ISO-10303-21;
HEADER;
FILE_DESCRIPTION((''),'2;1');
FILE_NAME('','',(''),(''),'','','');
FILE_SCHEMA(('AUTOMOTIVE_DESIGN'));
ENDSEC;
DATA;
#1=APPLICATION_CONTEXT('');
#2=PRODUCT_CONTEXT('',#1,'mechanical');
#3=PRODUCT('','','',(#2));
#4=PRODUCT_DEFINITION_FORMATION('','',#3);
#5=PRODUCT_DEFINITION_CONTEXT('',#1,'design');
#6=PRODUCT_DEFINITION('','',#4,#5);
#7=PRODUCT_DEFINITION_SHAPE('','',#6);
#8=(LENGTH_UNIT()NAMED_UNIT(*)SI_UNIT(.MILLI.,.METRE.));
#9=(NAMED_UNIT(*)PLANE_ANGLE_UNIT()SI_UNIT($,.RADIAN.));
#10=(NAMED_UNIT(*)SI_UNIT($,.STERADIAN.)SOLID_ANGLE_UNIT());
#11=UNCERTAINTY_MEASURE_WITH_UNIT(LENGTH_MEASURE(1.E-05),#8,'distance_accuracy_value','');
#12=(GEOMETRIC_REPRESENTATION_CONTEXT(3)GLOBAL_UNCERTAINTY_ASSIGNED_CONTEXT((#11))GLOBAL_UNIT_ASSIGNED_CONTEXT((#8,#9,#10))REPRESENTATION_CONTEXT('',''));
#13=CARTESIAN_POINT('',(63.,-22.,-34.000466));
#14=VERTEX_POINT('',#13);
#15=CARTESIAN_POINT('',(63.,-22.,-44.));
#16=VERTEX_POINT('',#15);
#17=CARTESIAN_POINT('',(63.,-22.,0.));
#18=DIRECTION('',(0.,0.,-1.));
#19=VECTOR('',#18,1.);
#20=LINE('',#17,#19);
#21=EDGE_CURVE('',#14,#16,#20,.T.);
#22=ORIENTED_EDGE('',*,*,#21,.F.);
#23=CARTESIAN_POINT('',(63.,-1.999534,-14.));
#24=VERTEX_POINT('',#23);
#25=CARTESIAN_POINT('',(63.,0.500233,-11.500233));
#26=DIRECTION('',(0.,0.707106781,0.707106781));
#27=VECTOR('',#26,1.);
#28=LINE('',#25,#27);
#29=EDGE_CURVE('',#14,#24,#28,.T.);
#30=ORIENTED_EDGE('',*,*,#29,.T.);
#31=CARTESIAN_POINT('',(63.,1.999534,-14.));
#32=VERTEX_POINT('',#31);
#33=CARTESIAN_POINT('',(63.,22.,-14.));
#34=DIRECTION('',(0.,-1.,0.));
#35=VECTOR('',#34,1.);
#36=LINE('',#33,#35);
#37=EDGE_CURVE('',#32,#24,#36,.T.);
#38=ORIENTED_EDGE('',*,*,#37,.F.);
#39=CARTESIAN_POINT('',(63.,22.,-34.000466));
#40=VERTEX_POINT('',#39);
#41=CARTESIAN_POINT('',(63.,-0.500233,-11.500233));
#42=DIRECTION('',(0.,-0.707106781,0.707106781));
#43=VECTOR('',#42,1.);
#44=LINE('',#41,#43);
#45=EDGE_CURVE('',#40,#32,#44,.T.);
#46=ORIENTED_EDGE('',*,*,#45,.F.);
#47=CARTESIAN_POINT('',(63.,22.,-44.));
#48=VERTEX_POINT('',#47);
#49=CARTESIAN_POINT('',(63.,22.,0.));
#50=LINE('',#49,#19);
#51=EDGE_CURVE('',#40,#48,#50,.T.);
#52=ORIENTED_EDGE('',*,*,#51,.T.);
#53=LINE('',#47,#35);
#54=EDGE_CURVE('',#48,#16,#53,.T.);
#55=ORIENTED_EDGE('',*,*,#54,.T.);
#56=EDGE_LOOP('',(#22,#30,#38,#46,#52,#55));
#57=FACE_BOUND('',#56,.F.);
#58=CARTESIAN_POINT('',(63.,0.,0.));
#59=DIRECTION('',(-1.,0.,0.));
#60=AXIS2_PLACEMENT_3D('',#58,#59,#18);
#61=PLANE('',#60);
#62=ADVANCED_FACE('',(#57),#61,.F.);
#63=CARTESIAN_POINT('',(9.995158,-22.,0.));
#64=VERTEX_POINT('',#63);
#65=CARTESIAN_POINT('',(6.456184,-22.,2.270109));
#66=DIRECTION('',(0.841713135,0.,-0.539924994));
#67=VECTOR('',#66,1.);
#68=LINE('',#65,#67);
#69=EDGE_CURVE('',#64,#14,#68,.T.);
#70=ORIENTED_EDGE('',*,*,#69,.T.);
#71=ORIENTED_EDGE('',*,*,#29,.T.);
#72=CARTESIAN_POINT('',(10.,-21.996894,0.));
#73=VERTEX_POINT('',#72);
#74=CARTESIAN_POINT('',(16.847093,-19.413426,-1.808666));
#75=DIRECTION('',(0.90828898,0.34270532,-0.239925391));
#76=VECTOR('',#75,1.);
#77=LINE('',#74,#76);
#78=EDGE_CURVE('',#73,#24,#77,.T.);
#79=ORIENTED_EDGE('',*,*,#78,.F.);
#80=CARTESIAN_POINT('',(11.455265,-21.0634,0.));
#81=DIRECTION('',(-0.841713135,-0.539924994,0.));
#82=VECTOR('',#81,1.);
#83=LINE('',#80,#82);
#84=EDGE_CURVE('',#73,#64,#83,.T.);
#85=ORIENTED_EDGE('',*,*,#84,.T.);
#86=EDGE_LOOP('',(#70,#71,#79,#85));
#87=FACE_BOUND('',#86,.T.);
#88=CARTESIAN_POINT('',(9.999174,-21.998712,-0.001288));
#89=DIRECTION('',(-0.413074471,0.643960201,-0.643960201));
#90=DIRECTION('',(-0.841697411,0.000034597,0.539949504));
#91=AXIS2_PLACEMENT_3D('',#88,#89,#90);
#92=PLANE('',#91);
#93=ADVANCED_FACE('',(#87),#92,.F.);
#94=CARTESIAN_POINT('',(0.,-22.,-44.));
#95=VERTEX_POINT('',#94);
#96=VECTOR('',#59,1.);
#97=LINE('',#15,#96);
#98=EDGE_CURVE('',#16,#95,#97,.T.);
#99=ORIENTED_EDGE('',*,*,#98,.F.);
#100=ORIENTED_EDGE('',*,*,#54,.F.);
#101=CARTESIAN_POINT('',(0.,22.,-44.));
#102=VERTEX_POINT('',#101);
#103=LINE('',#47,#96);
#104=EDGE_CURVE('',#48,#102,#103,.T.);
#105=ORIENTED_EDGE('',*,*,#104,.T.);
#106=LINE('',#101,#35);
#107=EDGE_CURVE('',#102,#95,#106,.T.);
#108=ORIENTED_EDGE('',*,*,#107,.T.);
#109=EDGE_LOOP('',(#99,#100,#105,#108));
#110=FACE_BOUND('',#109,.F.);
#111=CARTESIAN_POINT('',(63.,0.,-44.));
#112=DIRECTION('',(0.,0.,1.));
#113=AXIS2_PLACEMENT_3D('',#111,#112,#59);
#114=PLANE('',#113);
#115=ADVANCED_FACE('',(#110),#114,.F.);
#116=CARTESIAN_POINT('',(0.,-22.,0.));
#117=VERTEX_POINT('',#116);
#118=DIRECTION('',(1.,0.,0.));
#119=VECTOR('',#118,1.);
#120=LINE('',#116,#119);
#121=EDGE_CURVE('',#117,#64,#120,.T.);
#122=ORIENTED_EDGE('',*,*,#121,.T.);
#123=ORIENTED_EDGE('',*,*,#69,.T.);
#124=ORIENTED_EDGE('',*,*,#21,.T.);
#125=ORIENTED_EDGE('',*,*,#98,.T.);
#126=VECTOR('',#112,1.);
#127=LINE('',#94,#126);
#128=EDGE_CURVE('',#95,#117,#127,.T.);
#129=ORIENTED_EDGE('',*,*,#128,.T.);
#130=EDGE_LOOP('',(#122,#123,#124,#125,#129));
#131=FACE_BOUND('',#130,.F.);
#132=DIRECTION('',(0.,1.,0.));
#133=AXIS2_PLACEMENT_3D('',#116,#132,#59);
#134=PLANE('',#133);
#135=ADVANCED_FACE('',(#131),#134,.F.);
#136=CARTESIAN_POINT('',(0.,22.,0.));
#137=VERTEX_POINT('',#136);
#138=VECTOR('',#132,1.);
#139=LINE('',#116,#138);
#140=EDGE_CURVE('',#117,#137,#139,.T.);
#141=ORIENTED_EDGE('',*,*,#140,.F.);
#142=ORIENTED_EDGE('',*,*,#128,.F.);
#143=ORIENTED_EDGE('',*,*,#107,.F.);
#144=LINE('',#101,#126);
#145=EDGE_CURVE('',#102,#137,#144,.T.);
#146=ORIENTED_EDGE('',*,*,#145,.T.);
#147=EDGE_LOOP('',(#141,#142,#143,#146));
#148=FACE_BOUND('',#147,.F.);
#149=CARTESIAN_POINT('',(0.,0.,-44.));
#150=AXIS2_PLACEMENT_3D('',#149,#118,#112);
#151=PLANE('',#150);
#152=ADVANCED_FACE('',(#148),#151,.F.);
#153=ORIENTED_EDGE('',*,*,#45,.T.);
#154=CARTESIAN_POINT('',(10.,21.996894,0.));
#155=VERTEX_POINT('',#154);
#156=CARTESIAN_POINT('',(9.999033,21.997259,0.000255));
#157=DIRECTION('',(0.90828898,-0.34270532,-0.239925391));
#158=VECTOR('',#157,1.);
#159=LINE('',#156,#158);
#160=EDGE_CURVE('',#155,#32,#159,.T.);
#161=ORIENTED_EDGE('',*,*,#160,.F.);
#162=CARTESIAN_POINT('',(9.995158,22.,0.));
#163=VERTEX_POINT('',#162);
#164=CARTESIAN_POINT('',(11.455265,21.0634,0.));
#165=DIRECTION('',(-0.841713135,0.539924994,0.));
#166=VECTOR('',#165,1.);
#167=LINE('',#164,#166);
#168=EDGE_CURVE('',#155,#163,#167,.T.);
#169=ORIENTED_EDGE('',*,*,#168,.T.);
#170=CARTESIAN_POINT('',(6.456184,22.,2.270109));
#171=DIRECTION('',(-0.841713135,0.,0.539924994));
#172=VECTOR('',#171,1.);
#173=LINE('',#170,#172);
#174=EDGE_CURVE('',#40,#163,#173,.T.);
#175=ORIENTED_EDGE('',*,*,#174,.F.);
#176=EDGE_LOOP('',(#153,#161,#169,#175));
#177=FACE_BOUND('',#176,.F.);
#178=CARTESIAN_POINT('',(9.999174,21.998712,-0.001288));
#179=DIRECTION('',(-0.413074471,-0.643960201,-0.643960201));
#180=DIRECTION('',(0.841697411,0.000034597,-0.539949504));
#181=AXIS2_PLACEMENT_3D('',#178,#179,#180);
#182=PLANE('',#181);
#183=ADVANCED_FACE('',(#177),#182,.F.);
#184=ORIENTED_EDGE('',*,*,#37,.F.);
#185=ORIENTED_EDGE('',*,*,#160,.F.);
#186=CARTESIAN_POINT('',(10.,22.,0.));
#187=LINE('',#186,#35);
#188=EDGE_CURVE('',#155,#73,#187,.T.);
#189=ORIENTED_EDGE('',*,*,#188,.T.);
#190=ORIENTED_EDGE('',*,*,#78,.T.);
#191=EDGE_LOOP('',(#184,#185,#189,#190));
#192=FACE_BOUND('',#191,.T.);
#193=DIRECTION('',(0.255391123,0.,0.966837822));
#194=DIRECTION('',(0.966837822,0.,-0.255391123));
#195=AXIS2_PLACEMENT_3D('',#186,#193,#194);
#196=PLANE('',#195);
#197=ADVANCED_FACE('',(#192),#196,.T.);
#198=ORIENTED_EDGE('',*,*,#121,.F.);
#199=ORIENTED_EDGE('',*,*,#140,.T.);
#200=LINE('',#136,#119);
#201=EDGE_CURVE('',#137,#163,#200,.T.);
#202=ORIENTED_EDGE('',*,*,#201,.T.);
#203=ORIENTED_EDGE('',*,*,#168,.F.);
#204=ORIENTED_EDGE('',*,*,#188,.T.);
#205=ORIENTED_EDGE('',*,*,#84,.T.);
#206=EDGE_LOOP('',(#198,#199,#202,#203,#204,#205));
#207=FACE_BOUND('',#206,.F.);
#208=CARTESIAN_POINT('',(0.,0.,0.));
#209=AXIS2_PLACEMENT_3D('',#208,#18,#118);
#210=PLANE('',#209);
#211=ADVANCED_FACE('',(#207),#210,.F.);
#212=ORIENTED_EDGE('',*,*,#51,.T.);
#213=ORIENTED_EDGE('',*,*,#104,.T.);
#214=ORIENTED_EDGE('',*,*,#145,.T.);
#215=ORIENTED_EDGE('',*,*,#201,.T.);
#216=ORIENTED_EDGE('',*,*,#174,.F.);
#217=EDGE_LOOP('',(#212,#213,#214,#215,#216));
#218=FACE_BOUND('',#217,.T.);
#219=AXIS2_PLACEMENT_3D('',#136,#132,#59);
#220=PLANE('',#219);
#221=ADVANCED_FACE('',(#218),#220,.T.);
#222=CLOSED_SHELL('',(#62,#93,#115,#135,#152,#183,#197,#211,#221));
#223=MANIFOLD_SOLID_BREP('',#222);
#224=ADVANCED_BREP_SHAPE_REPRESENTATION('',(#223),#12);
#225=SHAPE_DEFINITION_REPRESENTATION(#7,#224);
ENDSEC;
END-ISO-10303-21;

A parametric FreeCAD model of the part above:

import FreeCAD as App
import Part
import Sketcher
from FreeCAD import Vector
Q = App.Units.Quantity


def add_polygon(sketch, points):
    """Adds a closed chain of lines whose ends are joined by coincident constraints."""
    first, n = sketch.GeometryCount, len(points)
    for a, b in zip(points, points[1:] + points[:1]):
        sketch.addGeometry(Part.LineSegment(App.Vector(*a, 0), App.Vector(*b, 0)), False)
    for i in range(n):
        sketch.addConstraint(Sketcher.Constraint("Coincident", first + i, 2, first + (i + 1) % n, 1))

doc = App.newDocument("Part")
params = doc.addObject("Spreadsheet::Sheet", "Params")
for row, (alias, value) in enumerate([
    ("sketch1_width", "63 mm"),
    ("sketch1_height", "44 mm"),
    ("pad1_length", "44 mm"),
    ("sketch2_width", "53 mm"),
    ("sketch2_height", "14 mm"),
    ("pocket1_length", "60 mm"),
    ("pocket2_length", "40 mm"),
], start=1):
    params.set(f"A{row}", alias)
    params.set(f"B{row}", "=" + value)
    params.setAlias(f"B{row}", alias)

body = doc.addObject("PartDesign::Body", "Body")

sketch1 = body.newObject("Sketcher::SketchObject", "Sketch")
sketch1.AttachmentSupport = (doc.getObject("XZ_Plane"), [""])
sketch1.MapMode = "FlatFace"
add_polygon(sketch1, [(0, -44), (0, 0), (63, 0), (63, -44)])
sketch1.addConstraint([
    Sketcher.Constraint("Vertical", 0),
    Sketcher.Constraint("Horizontal", 1),
    Sketcher.Constraint("Vertical", 2),
    Sketcher.Constraint("Horizontal", 3),
    Sketcher.Constraint("Coincident", 0, 2, -1, 1),
    Sketcher.Constraint("DistanceX", 1, 1, 1, 2, Q("63 mm")),
    Sketcher.Constraint("DistanceY", 0, 1, 0, 2, Q("44 mm")),
])
sketch1.setExpression("Constraints[9]", "Params.sketch1_width")
sketch1.setExpression("Constraints[10]", "Params.sketch1_height")
pad1 = body.newObject("PartDesign::Pad", "Pad")
pad1.Profile = sketch1
pad1.setExpression("Length", "Params.pad1_length")
pad1.Midplane = True

sketch2 = body.newObject("Sketcher::SketchObject", "Sketch001")
sketch2.AttachmentSupport = (doc.getObject("XZ_Plane"), [""])
sketch2.MapMode = "FlatFace"
sketch2.AttachmentOffset = App.Placement(Vector(0, 0, -22), App.Rotation())
add_polygon(sketch2, [(63, -14), (10, 0), (63, 0)])
sketch2.addConstraint([
    Sketcher.Constraint("Horizontal", 1),
    Sketcher.Constraint("Vertical", 2),
    Sketcher.Constraint("PointOnObject", 0, 2, -1),
    Sketcher.Constraint("DistanceX", -1, 1, 0, 2, Q("10 mm")),
    Sketcher.Constraint("DistanceX", 1, 1, 1, 2, Q("53 mm")),
    Sketcher.Constraint("DistanceY", 2, 2, 2, 1, Q("14 mm")),
])
sketch2.setExpression("Constraints[7]", "Params.sketch2_width")
sketch2.setExpression("Constraints[8]", "Params.sketch2_height")
pocket1 = body.newObject("PartDesign::Pocket", "Pocket")
pocket1.Profile = sketch2
pocket1.setExpression("Length", "Params.pocket1_length")
pocket1.Reversed = True

sketch3 = body.newObject("Sketcher::SketchObject", "Sketch002")
sketch3.Placement = App.Placement(Vector(10, 22, 0), App.Rotation(Vector(0.841697411, 0.000034597, -0.539949504), Vector(0.34772827, -0.76505899, 0.542005343), Vector(-0.413074471, -0.643960201, -0.643960201), "ZXY"))
add_polygon(sketch3, [(-15, 29), (-15, -12), (94, -12), (94, 29)])
sketch3.addConstraint([
    Sketcher.Constraint("Vertical", 0),
    Sketcher.Constraint("Horizontal", 1),
    Sketcher.Constraint("Vertical", 2),
    Sketcher.Constraint("Horizontal", 3),
    Sketcher.Constraint("DistanceX", 1, 1, 1, 2, Q("108.8713 mm")),
    Sketcher.Constraint("DistanceY", 0, 2, 0, 1, Q("41.1384 mm")),
    Sketcher.Constraint("DistanceX", -1, 1, 1, 2, Q("93.717 mm")),
    Sketcher.Constraint("DistanceY", 0, 2, -1, 1, Q("12.3218 mm")),
])
pocket2 = body.newObject("PartDesign::Pocket", "Pocket001")
pocket2.Profile = sketch3
pocket2.setExpression("Length", "Params.pocket2_length")
doc.recompute()

mirrored = body.newObject("PartDesign::Mirrored", "Mirrored")
mirrored.Originals = [pocket2]
mirrored.MirrorPlane = (doc.getObject("XZ_Plane"), [""])
body.Tip = mirrored

doc.recompute()
